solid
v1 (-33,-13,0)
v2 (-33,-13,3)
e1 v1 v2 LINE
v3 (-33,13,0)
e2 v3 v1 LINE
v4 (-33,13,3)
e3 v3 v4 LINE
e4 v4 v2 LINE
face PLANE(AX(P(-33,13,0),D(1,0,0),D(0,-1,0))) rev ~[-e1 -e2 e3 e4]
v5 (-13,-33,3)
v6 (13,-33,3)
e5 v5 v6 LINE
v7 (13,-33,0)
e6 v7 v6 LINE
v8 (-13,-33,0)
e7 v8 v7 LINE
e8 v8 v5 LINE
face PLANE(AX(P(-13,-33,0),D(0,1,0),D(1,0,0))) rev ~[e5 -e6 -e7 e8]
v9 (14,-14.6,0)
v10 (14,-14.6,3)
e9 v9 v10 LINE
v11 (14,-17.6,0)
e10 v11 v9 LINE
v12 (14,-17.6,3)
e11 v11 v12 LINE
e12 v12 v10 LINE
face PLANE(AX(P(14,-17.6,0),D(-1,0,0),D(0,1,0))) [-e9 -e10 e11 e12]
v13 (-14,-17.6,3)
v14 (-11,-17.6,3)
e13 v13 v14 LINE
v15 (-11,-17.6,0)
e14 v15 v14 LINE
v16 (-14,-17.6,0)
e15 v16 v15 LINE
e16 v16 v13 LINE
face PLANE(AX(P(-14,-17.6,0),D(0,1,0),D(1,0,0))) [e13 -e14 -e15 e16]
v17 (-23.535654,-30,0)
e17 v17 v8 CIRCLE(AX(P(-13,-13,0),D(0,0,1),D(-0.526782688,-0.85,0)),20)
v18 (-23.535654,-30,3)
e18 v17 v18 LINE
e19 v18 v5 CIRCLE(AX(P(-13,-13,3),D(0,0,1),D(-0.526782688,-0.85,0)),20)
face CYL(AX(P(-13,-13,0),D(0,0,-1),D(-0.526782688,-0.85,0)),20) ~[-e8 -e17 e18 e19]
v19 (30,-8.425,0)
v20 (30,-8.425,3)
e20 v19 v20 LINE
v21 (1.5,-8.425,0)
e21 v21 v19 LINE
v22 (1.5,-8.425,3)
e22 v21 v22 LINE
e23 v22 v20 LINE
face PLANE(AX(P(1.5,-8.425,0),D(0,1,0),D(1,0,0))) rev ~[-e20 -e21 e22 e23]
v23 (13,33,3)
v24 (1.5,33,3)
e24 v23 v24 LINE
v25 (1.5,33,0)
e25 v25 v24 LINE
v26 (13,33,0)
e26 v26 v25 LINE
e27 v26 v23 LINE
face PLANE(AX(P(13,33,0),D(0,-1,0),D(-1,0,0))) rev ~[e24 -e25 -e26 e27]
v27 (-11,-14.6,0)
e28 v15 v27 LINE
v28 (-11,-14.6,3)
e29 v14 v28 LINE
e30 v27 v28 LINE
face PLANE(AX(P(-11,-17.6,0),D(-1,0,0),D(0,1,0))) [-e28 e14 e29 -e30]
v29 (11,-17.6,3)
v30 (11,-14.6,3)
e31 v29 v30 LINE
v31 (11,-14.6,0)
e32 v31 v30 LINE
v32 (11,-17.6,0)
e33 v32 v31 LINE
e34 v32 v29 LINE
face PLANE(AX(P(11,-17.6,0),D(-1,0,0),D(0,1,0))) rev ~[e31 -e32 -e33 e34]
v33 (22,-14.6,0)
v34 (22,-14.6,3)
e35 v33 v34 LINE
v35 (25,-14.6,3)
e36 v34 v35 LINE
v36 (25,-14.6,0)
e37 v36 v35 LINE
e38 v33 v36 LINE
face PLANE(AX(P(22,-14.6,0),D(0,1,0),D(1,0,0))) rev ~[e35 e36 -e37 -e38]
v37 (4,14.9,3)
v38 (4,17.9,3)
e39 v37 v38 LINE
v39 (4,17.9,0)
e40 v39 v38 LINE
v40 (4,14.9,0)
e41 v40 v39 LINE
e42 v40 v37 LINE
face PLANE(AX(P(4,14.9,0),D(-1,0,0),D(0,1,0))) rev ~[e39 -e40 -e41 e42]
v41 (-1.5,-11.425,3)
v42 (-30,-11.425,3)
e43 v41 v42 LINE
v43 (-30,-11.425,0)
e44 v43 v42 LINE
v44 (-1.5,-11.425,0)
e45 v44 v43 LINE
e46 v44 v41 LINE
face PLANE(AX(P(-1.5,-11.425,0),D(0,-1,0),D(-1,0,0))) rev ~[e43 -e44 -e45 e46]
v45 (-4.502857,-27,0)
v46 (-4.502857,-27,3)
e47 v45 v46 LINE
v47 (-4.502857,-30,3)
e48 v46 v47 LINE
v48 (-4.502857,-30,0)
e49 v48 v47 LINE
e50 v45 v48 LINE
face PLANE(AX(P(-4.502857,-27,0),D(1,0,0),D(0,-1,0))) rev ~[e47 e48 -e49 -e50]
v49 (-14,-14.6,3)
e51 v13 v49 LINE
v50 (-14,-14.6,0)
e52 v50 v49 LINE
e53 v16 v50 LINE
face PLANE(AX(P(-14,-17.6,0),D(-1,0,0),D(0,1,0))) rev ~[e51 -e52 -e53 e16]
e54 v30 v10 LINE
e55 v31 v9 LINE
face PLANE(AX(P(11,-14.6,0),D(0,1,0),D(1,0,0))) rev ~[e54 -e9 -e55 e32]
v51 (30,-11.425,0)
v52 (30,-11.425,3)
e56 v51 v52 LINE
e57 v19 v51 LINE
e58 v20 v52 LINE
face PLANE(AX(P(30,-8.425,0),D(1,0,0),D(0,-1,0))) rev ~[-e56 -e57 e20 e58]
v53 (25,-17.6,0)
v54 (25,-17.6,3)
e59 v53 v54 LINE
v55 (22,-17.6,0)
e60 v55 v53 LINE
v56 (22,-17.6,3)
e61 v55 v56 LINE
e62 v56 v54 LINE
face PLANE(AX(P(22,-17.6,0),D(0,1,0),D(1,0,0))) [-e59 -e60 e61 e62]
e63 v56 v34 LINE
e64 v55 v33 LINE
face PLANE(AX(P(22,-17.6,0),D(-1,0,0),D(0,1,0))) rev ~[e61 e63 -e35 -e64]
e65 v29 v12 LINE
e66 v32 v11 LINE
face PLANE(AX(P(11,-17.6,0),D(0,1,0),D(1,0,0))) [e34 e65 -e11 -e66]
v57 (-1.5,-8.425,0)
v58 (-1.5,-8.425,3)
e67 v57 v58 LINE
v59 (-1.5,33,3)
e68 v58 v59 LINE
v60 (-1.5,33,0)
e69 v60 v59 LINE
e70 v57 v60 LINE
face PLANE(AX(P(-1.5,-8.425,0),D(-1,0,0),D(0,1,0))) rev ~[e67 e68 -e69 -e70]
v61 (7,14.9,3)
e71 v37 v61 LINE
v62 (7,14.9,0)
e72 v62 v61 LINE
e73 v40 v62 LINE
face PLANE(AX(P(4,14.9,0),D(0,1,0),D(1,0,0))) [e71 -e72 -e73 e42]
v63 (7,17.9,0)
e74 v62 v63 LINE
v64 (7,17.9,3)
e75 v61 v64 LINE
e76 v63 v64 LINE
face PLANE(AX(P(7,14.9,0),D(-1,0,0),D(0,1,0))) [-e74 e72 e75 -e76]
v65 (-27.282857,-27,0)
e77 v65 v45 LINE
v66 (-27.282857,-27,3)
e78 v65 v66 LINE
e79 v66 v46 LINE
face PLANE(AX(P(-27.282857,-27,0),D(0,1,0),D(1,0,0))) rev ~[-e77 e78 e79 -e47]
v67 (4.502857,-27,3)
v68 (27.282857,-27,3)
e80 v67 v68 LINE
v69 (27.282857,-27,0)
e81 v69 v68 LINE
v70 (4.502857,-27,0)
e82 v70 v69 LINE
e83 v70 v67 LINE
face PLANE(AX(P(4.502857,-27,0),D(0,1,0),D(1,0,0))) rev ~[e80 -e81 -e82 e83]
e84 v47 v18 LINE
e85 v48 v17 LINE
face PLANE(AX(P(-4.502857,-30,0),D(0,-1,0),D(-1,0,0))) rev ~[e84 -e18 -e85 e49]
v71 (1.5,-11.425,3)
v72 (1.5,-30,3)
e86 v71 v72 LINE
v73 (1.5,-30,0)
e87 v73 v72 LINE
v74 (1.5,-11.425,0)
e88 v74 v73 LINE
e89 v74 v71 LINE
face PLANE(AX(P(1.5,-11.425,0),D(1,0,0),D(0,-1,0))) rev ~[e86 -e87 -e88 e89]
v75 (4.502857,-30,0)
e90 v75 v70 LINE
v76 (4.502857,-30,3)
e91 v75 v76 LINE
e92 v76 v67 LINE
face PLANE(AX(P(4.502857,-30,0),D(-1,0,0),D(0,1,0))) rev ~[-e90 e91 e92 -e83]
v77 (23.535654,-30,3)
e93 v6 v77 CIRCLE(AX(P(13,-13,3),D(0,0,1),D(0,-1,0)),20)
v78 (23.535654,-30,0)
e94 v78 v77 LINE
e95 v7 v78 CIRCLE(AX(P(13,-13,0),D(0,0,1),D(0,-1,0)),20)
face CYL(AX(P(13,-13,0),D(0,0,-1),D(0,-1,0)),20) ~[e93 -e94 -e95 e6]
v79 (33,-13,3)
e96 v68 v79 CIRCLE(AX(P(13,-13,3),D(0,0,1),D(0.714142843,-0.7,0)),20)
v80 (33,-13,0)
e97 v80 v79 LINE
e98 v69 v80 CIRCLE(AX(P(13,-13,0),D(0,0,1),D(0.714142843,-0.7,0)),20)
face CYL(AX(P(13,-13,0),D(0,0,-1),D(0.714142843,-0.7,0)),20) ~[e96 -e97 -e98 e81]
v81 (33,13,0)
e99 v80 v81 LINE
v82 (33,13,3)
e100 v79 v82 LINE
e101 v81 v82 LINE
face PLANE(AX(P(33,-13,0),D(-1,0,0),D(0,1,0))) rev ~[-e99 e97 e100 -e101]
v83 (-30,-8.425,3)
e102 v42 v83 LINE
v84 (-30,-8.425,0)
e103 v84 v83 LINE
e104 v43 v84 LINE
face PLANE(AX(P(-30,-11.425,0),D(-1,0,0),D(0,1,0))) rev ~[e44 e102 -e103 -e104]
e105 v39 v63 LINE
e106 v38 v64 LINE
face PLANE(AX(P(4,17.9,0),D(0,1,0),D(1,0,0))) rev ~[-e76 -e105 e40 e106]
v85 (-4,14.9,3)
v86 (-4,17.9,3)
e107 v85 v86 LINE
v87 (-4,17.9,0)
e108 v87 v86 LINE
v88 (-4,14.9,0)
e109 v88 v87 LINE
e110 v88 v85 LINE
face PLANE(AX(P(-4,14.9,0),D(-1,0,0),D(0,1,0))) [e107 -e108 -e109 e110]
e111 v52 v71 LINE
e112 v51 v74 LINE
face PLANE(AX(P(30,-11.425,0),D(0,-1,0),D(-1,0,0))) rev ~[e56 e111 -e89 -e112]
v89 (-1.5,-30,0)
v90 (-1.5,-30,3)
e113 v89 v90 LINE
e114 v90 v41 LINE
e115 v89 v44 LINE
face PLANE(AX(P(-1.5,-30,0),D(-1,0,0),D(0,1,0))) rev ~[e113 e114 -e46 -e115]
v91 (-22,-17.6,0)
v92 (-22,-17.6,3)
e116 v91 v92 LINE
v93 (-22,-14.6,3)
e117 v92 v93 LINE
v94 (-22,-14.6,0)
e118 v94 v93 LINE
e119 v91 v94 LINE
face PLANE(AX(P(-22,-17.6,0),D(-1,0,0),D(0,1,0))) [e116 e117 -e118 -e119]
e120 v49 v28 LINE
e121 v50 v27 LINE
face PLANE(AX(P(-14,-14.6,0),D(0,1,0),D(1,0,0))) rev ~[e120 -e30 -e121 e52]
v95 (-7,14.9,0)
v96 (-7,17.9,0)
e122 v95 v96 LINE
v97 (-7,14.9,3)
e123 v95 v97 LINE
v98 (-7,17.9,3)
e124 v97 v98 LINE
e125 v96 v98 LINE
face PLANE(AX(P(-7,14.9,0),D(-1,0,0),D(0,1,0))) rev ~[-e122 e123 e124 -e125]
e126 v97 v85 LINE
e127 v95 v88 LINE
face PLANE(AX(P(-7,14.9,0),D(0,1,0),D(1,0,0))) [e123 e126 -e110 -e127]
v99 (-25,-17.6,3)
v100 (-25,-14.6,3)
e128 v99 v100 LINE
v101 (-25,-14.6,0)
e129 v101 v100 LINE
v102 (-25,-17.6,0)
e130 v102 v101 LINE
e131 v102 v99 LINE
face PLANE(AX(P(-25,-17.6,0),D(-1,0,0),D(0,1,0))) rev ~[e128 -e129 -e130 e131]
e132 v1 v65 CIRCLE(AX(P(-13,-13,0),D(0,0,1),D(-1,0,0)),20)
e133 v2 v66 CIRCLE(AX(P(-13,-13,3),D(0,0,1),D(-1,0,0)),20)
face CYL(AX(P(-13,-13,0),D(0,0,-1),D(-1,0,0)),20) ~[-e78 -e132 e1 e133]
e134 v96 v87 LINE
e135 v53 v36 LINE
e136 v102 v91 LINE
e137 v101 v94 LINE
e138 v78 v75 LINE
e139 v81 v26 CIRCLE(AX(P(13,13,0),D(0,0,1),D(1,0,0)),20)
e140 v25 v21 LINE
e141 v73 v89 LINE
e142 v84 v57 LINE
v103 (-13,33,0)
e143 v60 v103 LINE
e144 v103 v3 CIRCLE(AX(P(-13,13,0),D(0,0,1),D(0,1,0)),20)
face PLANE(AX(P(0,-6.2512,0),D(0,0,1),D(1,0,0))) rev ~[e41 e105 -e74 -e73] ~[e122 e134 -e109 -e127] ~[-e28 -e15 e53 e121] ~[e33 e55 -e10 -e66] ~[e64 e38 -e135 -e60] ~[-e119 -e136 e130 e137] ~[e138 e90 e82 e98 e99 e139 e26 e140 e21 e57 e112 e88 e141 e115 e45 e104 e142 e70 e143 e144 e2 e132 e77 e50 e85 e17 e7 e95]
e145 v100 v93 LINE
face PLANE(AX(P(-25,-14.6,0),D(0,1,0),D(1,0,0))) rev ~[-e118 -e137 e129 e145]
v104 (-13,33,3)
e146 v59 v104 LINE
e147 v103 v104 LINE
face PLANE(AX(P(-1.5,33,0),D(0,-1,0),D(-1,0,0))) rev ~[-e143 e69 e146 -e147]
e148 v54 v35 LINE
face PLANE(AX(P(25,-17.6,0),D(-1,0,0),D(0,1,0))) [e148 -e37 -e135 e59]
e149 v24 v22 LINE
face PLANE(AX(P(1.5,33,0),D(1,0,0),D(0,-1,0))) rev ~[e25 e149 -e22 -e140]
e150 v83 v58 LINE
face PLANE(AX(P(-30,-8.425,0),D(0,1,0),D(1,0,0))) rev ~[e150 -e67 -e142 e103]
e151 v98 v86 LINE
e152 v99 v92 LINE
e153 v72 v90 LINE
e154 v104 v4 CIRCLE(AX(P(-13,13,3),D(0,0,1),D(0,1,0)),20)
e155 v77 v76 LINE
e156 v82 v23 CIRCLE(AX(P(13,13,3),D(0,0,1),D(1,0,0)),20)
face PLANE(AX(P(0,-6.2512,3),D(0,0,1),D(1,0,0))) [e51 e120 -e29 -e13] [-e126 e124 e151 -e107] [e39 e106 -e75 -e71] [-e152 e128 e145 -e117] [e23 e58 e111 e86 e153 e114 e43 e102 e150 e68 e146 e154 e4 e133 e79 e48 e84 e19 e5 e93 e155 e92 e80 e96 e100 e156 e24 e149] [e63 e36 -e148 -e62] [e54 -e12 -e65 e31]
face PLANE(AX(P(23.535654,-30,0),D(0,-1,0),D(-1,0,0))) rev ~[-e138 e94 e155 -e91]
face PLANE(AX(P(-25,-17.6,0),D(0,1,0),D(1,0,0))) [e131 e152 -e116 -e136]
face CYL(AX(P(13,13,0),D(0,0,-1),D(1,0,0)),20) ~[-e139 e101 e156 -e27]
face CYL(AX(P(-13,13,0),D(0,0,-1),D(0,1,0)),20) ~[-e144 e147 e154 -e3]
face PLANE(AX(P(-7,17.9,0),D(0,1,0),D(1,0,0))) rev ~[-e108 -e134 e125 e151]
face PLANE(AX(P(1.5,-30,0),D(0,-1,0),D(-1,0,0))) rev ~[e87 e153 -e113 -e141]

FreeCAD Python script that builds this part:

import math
import FreeCAD as App
import Part
import Sketcher
Q = App.Units.Quantity

doc = App.newDocument("Part")
body = doc.addObject("PartDesign::Body", "Body")

sketch1 = body.newObject("Sketcher::SketchObject", "Sketch")
sketch1.AttachmentSupport = (doc.getObject("XY_Plane"), [""])
sketch1.MapMode = "FlatFace"
sketch1.addGeometry([
    Part.LineSegment(App.Vector(-30, -11.425, 0), App.Vector(-30, -8.425, 0)),
    Part.LineSegment(App.Vector(-30, -8.425, 0), App.Vector(-1.5, -8.425, 0)),
    Part.LineSegment(App.Vector(-1.5, -8.425, 0), App.Vector(-1.5, 33, 0)),
    Part.LineSegment(App.Vector(-1.5, 33, 0), App.Vector(-13, 33, 0)),
    Part.ArcOfCircle(Part.Circle(App.Vector(-13, 13, 0), App.Vector(0, 0, 1), 20), math.radians(90), math.radians(180)),
    Part.LineSegment(App.Vector(-33, 13, 0), App.Vector(-33, -13, 0)),
    Part.ArcOfCircle(Part.Circle(App.Vector(-13, -13, 0), App.Vector(0, 0, 1), 20), math.radians(-180), math.radians(-135.572996)),
    Part.LineSegment(App.Vector(-27.282857, -27, 0), App.Vector(-4.502857, -27, 0)),
    Part.LineSegment(App.Vector(-4.502857, -27, 0), App.Vector(-4.502857, -30, 0)),
    Part.LineSegment(App.Vector(-4.502857, -30, 0), App.Vector(-23.535654, -30, 0)),
    Part.ArcOfCircle(Part.Circle(App.Vector(-13, -13, 0), App.Vector(0, 0, 1), 20), math.radians(-121.788331), math.radians(-90)),
    Part.LineSegment(App.Vector(-13, -33, 0), App.Vector(13, -33, 0)),
    Part.ArcOfCircle(Part.Circle(App.Vector(13, -13, 0), App.Vector(0, 0, 1), 20), math.radians(-90), math.radians(-58.211669)),
    Part.LineSegment(App.Vector(23.535654, -30, 0), App.Vector(4.502857, -30, 0)),
    Part.LineSegment(App.Vector(4.502857, -30, 0), App.Vector(4.502857, -27, 0)),
    Part.LineSegment(App.Vector(4.502857, -27, 0), App.Vector(27.282857, -27, 0)),
    Part.ArcOfCircle(Part.Circle(App.Vector(13, -13, 0), App.Vector(0, 0, 1), 20), math.radians(-44.427004), math.radians(0)),
    Part.LineSegment(App.Vector(33, -13, 0), App.Vector(33, 13, 0)),
    Part.ArcOfCircle(Part.Circle(App.Vector(13, 13, 0), App.Vector(0, 0, 1), 20), math.radians(0), math.radians(90)),
    Part.LineSegment(App.Vector(13, 33, 0), App.Vector(1.5, 33, 0)),
    Part.LineSegment(App.Vector(1.5, 33, 0), App.Vector(1.5, -8.425, 0)),
    Part.LineSegment(App.Vector(1.5, -8.425, 0), App.Vector(30, -8.425, 0)),
    Part.LineSegment(App.Vector(30, -8.425, 0), App.Vector(30, -11.425, 0)),
    Part.LineSegment(App.Vector(30, -11.425, 0), App.Vector(1.5, -11.425, 0)),
    Part.LineSegment(App.Vector(1.5, -11.425, 0), App.Vector(1.5, -30, 0)),
    Part.LineSegment(App.Vector(1.5, -30, 0), App.Vector(-1.5, -30, 0)),
    Part.LineSegment(App.Vector(-1.5, -30, 0), App.Vector(-1.5, -11.425, 0)),
    Part.LineSegment(App.Vector(-1.5, -11.425, 0), App.Vector(-30, -11.425, 0)),
    Part.LineSegment(App.Vector(-22, -17.6, 0), App.Vector(-25, -17.6, 0)),
    Part.LineSegment(App.Vector(-25, -17.6, 0), App.Vector(-25, -14.6, 0)),
    Part.LineSegment(App.Vector(-25, -14.6, 0), App.Vector(-22, -14.6, 0)),
    Part.LineSegment(App.Vector(-22, -14.6, 0), App.Vector(-22, -17.6, 0)),
    Part.LineSegment(App.Vector(-11, -17.6, 0), App.Vector(-14, -17.6, 0)),
    Part.LineSegment(App.Vector(-14, -17.6, 0), App.Vector(-14, -14.6, 0)),
    Part.LineSegment(App.Vector(-14, -14.6, 0), App.Vector(-11, -14.6, 0)),
    Part.LineSegment(App.Vector(-11, -14.6, 0), App.Vector(-11, -17.6, 0)),
    Part.LineSegment(App.Vector(14, -17.6, 0), App.Vector(11, -17.6, 0)),
    Part.LineSegment(App.Vector(11, -17.6, 0), App.Vector(11, -14.6, 0)),
    Part.LineSegment(App.Vector(11, -14.6, 0), App.Vector(14, -14.6, 0)),
    Part.LineSegment(App.Vector(14, -14.6, 0), App.Vector(14, -17.6, 0)),
    Part.LineSegment(App.Vector(25, -17.6, 0), App.Vector(22, -17.6, 0)),
    Part.LineSegment(App.Vector(22, -17.6, 0), App.Vector(22, -14.6, 0)),
    Part.LineSegment(App.Vector(22, -14.6, 0), App.Vector(25, -14.6, 0)),
    Part.LineSegment(App.Vector(25, -14.6, 0), App.Vector(25, -17.6, 0)),
    Part.LineSegment(App.Vector(-4, 14.9, 0), App.Vector(-7, 14.9, 0)),
    Part.LineSegment(App.Vector(-7, 14.9, 0), App.Vector(-7, 17.9, 0)),
    Part.LineSegment(App.Vector(-7, 17.9, 0), App.Vector(-4, 17.9, 0)),
    Part.LineSegment(App.Vector(-4, 17.9, 0), App.Vector(-4, 14.9, 0)),
    Part.LineSegment(App.Vector(7, 14.9, 0), App.Vector(4, 14.9, 0)),
    Part.LineSegment(App.Vector(4, 14.9, 0), App.Vector(4, 17.9, 0)),
    Part.LineSegment(App.Vector(4, 17.9, 0), App.Vector(7, 17.9, 0)),
    Part.LineSegment(App.Vector(7, 17.9, 0), App.Vector(7, 14.9, 0)),
], False)
sketch1.addConstraint([
    Sketcher.Constraint("Coincident", 0, 2, 1, 1),
    Sketcher.Constraint("Coincident", 1, 2, 2, 1),
    Sketcher.Constraint("Coincident", 2, 2, 3, 1),
    Sketcher.Constraint("Tangent", 3, 2, 4, 1),
    Sketcher.Constraint("Tangent", 4, 2, 5, 1),
    Sketcher.Constraint("Tangent", 5, 2, 6, 1),
    Sketcher.Constraint("Coincident", 6, 2, 7, 1),
    Sketcher.Constraint("Coincident", 7, 2, 8, 1),
    Sketcher.Constraint("Coincident", 8, 2, 9, 1),
    Sketcher.Constraint("Coincident", 9, 2, 10, 1),
    Sketcher.Constraint("Tangent", 10, 2, 11, 1),
    Sketcher.Constraint("Tangent", 11, 2, 12, 1),
    Sketcher.Constraint("Coincident", 12, 2, 13, 1),
    Sketcher.Constraint("Coincident", 13, 2, 14, 1),
    Sketcher.Constraint("Coincident", 14, 2, 15, 1),
    Sketcher.Constraint("Coincident", 15, 2, 16, 1),
    Sketcher.Constraint("Tangent", 16, 2, 17, 1),
    Sketcher.Constraint("Tangent", 17, 2, 18, 1),
    Sketcher.Constraint("Tangent", 18, 2, 19, 1),
    Sketcher.Constraint("Coincident", 19, 2, 20, 1),
    Sketcher.Constraint("Coincident", 20, 2, 21, 1),
    Sketcher.Constraint("Coincident", 21, 2, 22, 1),
    Sketcher.Constraint("Coincident", 22, 2, 23, 1),
    Sketcher.Constraint("Coincident", 23, 2, 24, 1),
    Sketcher.Constraint("Coincident", 24, 2, 25, 1),
    Sketcher.Constraint("Coincident", 25, 2, 26, 1),
    Sketcher.Constraint("Coincident", 26, 2, 27, 1),
    Sketcher.Constraint("Coincident", 27, 2, 0, 1),
    Sketcher.Constraint("Coincident", 28, 2, 29, 1),
    Sketcher.Constraint("Coincident", 29, 2, 30, 1),
    Sketcher.Constraint("Coincident", 30, 2, 31, 1),
    Sketcher.Constraint("Coincident", 31, 2, 28, 1),
    Sketcher.Constraint("Coincident", 32, 2, 33, 1),
    Sketcher.Constraint("Coincident", 33, 2, 34, 1),
    Sketcher.Constraint("Coincident", 34, 2, 35, 1),
    Sketcher.Constraint("Coincident", 35, 2, 32, 1),
    Sketcher.Constraint("Coincident", 36, 2, 37, 1),
    Sketcher.Constraint("Coincident", 37, 2, 38, 1),
    Sketcher.Constraint("Coincident", 38, 2, 39, 1),
    Sketcher.Constraint("Coincident", 39, 2, 36, 1),
    Sketcher.Constraint("Coincident", 40, 2, 41, 1),
    Sketcher.Constraint("Coincident", 41, 2, 42, 1),
    Sketcher.Constraint("Coincident", 42, 2, 43, 1),
    Sketcher.Constraint("Coincident", 43, 2, 40, 1),
    Sketcher.Constraint("Coincident", 44, 2, 45, 1),
    Sketcher.Constraint("Coincident", 45, 2, 46, 1),
    Sketcher.Constraint("Coincident", 46, 2, 47, 1),
    Sketcher.Constraint("Coincident", 47, 2, 44, 1),
    Sketcher.Constraint("Coincident", 48, 2, 49, 1),
    Sketcher.Constraint("Coincident", 49, 2, 50, 1),
    Sketcher.Constraint("Coincident", 50, 2, 51, 1),
    Sketcher.Constraint("Coincident", 51, 2, 48, 1),
    Sketcher.Constraint("Vertical", 0),
    Sketcher.Constraint("Horizontal", 1),
    Sketcher.Constraint("Vertical", 2),
    Sketcher.Constraint("Horizontal", 3),
    Sketcher.Constraint("Vertical", 5),
    Sketcher.Constraint("Horizontal", 7),
    Sketcher.Constraint("Vertical", 8),
    Sketcher.Constraint("Horizontal", 9),
    Sketcher.Constraint("Horizontal", 11),
    Sketcher.Constraint("Horizontal", 13),
    Sketcher.Constraint("Vertical", 14),
    Sketcher.Constraint("Horizontal", 15),
    Sketcher.Constraint("Vertical", 17),
    Sketcher.Constraint("Horizontal", 19),
    Sketcher.Constraint("Vertical", 20),
    Sketcher.Constraint("Horizontal", 21),
    Sketcher.Constraint("Vertical", 22),
    Sketcher.Constraint("Horizontal", 23),
    Sketcher.Constraint("Vertical", 24),
    Sketcher.Constraint("Horizontal", 25),
    Sketcher.Constraint("Vertical", 26),
    Sketcher.Constraint("Horizontal", 27),
    Sketcher.Constraint("Horizontal", 28),
    Sketcher.Constraint("Vertical", 29),
    Sketcher.Constraint("Horizontal", 30),
    Sketcher.Constraint("Vertical", 31),
    Sketcher.Constraint("Horizontal", 32),
    Sketcher.Constraint("Vertical", 33),
    Sketcher.Constraint("Horizontal", 34),
    Sketcher.Constraint("Vertical", 35),
    Sketcher.Constraint("Horizontal", 36),
    Sketcher.Constraint("Vertical", 37),
    Sketcher.Constraint("Horizontal", 38),
    Sketcher.Constraint("Vertical", 39),
    Sketcher.Constraint("Horizontal", 40),
    Sketcher.Constraint("Vertical", 41),
    Sketcher.Constraint("Horizontal", 42),
    Sketcher.Constraint("Vertical", 43),
    Sketcher.Constraint("Horizontal", 44),
    Sketcher.Constraint("Vertical", 45),
    Sketcher.Constraint("Horizontal", 46),
    Sketcher.Constraint("Vertical", 47),
    Sketcher.Constraint("Horizontal", 48),
    Sketcher.Constraint("Vertical", 49),
    Sketcher.Constraint("Horizontal", 50),
    Sketcher.Constraint("Vertical", 51),
    Sketcher.Constraint("Coincident", 10, 3, 6, 3),
    Sketcher.Constraint("Coincident", 16, 3, 12, 3),
    Sketcher.Constraint("Equal", 4, 6),
    Sketcher.Constraint("Equal", 6, 10),
    Sketcher.Constraint("Equal", 10, 12),
    Sketcher.Constraint("Equal", 12, 16),
    Sketcher.Constraint("Equal", 16, 18),
    Sketcher.Constraint("Symmetric", 4, 3, 12, 3, -1, 1),
    Sketcher.Constraint("Symmetric", 8, 2, 13, 2, -2),
    Sketcher.Constraint("Symmetric", 2, 2, 19, 2, -2),
    Sketcher.Constraint("Symmetric", 0, 2, 21, 2, -2),
    Sketcher.Constraint("Symmetric", 23, 2, 26, 2, -2),
    Sketcher.Constraint("Symmetric", 35, 2, 36, 2, -2),
    Sketcher.Constraint("Symmetric", 33, 2, 38, 2, -2),
    Sketcher.Constraint("Symmetric", 31, 2, 40, 2, -2),
    Sketcher.Constraint("Symmetric", 29, 2, 42, 2, -2),
    Sketcher.Constraint("Symmetric", 47, 2, 48, 2, -2),
    Sketcher.Constraint("Symmetric", 45, 2, 50, 2, -2),
    Sketcher.Constraint("Horizontal", 7, 2, 14, 2),
    Sketcher.Constraint("Horizontal", 13, 2, 24, 2),
    Sketcher.Constraint("Horizontal", 31, 2, 32, 2),
    Sketcher.Constraint("Horizontal", 30, 2, 33, 2),
    Sketcher.Constraint("Vertical", 20, 2, 23, 2),
    Sketcher.Constraint("Equal", 25, 28),
    Sketcher.Constraint("Equal", 30, 32),
    Sketcher.Constraint("Equal", 42, 44),
    Sketcher.Constraint("Equal", 50, 0),
    Sketcher.Constraint("Equal", 11, 5),
    Sketcher.Constraint("Equal", 0, 8),
    Sketcher.Constraint("Equal", 22, 29),
    Sketcher.Constraint("Equal", 43, 45),
    Sketcher.Constraint("Radius", 4, Q("20 mm")),
    Sketcher.Constraint("DistanceX", 11, 1, 11, 2, Q("26 mm")),
    Sketcher.Constraint("DistanceX", 25, 2, 25, 1, Q("3 mm")),
    Sketcher.Constraint("DistanceX", 1, 1, 1, 2, Q("28.5 mm")),
    Sketcher.Constraint("DistanceY", 6, 2, -1, 1, Q("27 mm")),
    Sketcher.Constraint("DistanceX", 28, 2, -1, 1, Q("25 mm")),
    Sketcher.Constraint("DistanceX", 32, 2, -1, 1, Q("14 mm")),
    Sketcher.Constraint("DistanceX", 44, 2, -1, 1, Q("7 mm")),
    Sketcher.Constraint("DistanceX", 7, 1, 7, 2, Q("22.78 mm")),
    Sketcher.Constraint("DistanceY", 28, 2, -1, 1, Q("17.6 mm")),
    Sketcher.Constraint("DistanceY", -1, 1, 44, 2, Q("14.9 mm")),
    Sketcher.Constraint("DistanceY", 2, 1, 2, 2, Q("41.425 mm")),
])
pad1 = body.newObject("PartDesign::Pad", "Pad")
pad1.Profile = sketch1
pad1.Length = 3

doc.recompute()
